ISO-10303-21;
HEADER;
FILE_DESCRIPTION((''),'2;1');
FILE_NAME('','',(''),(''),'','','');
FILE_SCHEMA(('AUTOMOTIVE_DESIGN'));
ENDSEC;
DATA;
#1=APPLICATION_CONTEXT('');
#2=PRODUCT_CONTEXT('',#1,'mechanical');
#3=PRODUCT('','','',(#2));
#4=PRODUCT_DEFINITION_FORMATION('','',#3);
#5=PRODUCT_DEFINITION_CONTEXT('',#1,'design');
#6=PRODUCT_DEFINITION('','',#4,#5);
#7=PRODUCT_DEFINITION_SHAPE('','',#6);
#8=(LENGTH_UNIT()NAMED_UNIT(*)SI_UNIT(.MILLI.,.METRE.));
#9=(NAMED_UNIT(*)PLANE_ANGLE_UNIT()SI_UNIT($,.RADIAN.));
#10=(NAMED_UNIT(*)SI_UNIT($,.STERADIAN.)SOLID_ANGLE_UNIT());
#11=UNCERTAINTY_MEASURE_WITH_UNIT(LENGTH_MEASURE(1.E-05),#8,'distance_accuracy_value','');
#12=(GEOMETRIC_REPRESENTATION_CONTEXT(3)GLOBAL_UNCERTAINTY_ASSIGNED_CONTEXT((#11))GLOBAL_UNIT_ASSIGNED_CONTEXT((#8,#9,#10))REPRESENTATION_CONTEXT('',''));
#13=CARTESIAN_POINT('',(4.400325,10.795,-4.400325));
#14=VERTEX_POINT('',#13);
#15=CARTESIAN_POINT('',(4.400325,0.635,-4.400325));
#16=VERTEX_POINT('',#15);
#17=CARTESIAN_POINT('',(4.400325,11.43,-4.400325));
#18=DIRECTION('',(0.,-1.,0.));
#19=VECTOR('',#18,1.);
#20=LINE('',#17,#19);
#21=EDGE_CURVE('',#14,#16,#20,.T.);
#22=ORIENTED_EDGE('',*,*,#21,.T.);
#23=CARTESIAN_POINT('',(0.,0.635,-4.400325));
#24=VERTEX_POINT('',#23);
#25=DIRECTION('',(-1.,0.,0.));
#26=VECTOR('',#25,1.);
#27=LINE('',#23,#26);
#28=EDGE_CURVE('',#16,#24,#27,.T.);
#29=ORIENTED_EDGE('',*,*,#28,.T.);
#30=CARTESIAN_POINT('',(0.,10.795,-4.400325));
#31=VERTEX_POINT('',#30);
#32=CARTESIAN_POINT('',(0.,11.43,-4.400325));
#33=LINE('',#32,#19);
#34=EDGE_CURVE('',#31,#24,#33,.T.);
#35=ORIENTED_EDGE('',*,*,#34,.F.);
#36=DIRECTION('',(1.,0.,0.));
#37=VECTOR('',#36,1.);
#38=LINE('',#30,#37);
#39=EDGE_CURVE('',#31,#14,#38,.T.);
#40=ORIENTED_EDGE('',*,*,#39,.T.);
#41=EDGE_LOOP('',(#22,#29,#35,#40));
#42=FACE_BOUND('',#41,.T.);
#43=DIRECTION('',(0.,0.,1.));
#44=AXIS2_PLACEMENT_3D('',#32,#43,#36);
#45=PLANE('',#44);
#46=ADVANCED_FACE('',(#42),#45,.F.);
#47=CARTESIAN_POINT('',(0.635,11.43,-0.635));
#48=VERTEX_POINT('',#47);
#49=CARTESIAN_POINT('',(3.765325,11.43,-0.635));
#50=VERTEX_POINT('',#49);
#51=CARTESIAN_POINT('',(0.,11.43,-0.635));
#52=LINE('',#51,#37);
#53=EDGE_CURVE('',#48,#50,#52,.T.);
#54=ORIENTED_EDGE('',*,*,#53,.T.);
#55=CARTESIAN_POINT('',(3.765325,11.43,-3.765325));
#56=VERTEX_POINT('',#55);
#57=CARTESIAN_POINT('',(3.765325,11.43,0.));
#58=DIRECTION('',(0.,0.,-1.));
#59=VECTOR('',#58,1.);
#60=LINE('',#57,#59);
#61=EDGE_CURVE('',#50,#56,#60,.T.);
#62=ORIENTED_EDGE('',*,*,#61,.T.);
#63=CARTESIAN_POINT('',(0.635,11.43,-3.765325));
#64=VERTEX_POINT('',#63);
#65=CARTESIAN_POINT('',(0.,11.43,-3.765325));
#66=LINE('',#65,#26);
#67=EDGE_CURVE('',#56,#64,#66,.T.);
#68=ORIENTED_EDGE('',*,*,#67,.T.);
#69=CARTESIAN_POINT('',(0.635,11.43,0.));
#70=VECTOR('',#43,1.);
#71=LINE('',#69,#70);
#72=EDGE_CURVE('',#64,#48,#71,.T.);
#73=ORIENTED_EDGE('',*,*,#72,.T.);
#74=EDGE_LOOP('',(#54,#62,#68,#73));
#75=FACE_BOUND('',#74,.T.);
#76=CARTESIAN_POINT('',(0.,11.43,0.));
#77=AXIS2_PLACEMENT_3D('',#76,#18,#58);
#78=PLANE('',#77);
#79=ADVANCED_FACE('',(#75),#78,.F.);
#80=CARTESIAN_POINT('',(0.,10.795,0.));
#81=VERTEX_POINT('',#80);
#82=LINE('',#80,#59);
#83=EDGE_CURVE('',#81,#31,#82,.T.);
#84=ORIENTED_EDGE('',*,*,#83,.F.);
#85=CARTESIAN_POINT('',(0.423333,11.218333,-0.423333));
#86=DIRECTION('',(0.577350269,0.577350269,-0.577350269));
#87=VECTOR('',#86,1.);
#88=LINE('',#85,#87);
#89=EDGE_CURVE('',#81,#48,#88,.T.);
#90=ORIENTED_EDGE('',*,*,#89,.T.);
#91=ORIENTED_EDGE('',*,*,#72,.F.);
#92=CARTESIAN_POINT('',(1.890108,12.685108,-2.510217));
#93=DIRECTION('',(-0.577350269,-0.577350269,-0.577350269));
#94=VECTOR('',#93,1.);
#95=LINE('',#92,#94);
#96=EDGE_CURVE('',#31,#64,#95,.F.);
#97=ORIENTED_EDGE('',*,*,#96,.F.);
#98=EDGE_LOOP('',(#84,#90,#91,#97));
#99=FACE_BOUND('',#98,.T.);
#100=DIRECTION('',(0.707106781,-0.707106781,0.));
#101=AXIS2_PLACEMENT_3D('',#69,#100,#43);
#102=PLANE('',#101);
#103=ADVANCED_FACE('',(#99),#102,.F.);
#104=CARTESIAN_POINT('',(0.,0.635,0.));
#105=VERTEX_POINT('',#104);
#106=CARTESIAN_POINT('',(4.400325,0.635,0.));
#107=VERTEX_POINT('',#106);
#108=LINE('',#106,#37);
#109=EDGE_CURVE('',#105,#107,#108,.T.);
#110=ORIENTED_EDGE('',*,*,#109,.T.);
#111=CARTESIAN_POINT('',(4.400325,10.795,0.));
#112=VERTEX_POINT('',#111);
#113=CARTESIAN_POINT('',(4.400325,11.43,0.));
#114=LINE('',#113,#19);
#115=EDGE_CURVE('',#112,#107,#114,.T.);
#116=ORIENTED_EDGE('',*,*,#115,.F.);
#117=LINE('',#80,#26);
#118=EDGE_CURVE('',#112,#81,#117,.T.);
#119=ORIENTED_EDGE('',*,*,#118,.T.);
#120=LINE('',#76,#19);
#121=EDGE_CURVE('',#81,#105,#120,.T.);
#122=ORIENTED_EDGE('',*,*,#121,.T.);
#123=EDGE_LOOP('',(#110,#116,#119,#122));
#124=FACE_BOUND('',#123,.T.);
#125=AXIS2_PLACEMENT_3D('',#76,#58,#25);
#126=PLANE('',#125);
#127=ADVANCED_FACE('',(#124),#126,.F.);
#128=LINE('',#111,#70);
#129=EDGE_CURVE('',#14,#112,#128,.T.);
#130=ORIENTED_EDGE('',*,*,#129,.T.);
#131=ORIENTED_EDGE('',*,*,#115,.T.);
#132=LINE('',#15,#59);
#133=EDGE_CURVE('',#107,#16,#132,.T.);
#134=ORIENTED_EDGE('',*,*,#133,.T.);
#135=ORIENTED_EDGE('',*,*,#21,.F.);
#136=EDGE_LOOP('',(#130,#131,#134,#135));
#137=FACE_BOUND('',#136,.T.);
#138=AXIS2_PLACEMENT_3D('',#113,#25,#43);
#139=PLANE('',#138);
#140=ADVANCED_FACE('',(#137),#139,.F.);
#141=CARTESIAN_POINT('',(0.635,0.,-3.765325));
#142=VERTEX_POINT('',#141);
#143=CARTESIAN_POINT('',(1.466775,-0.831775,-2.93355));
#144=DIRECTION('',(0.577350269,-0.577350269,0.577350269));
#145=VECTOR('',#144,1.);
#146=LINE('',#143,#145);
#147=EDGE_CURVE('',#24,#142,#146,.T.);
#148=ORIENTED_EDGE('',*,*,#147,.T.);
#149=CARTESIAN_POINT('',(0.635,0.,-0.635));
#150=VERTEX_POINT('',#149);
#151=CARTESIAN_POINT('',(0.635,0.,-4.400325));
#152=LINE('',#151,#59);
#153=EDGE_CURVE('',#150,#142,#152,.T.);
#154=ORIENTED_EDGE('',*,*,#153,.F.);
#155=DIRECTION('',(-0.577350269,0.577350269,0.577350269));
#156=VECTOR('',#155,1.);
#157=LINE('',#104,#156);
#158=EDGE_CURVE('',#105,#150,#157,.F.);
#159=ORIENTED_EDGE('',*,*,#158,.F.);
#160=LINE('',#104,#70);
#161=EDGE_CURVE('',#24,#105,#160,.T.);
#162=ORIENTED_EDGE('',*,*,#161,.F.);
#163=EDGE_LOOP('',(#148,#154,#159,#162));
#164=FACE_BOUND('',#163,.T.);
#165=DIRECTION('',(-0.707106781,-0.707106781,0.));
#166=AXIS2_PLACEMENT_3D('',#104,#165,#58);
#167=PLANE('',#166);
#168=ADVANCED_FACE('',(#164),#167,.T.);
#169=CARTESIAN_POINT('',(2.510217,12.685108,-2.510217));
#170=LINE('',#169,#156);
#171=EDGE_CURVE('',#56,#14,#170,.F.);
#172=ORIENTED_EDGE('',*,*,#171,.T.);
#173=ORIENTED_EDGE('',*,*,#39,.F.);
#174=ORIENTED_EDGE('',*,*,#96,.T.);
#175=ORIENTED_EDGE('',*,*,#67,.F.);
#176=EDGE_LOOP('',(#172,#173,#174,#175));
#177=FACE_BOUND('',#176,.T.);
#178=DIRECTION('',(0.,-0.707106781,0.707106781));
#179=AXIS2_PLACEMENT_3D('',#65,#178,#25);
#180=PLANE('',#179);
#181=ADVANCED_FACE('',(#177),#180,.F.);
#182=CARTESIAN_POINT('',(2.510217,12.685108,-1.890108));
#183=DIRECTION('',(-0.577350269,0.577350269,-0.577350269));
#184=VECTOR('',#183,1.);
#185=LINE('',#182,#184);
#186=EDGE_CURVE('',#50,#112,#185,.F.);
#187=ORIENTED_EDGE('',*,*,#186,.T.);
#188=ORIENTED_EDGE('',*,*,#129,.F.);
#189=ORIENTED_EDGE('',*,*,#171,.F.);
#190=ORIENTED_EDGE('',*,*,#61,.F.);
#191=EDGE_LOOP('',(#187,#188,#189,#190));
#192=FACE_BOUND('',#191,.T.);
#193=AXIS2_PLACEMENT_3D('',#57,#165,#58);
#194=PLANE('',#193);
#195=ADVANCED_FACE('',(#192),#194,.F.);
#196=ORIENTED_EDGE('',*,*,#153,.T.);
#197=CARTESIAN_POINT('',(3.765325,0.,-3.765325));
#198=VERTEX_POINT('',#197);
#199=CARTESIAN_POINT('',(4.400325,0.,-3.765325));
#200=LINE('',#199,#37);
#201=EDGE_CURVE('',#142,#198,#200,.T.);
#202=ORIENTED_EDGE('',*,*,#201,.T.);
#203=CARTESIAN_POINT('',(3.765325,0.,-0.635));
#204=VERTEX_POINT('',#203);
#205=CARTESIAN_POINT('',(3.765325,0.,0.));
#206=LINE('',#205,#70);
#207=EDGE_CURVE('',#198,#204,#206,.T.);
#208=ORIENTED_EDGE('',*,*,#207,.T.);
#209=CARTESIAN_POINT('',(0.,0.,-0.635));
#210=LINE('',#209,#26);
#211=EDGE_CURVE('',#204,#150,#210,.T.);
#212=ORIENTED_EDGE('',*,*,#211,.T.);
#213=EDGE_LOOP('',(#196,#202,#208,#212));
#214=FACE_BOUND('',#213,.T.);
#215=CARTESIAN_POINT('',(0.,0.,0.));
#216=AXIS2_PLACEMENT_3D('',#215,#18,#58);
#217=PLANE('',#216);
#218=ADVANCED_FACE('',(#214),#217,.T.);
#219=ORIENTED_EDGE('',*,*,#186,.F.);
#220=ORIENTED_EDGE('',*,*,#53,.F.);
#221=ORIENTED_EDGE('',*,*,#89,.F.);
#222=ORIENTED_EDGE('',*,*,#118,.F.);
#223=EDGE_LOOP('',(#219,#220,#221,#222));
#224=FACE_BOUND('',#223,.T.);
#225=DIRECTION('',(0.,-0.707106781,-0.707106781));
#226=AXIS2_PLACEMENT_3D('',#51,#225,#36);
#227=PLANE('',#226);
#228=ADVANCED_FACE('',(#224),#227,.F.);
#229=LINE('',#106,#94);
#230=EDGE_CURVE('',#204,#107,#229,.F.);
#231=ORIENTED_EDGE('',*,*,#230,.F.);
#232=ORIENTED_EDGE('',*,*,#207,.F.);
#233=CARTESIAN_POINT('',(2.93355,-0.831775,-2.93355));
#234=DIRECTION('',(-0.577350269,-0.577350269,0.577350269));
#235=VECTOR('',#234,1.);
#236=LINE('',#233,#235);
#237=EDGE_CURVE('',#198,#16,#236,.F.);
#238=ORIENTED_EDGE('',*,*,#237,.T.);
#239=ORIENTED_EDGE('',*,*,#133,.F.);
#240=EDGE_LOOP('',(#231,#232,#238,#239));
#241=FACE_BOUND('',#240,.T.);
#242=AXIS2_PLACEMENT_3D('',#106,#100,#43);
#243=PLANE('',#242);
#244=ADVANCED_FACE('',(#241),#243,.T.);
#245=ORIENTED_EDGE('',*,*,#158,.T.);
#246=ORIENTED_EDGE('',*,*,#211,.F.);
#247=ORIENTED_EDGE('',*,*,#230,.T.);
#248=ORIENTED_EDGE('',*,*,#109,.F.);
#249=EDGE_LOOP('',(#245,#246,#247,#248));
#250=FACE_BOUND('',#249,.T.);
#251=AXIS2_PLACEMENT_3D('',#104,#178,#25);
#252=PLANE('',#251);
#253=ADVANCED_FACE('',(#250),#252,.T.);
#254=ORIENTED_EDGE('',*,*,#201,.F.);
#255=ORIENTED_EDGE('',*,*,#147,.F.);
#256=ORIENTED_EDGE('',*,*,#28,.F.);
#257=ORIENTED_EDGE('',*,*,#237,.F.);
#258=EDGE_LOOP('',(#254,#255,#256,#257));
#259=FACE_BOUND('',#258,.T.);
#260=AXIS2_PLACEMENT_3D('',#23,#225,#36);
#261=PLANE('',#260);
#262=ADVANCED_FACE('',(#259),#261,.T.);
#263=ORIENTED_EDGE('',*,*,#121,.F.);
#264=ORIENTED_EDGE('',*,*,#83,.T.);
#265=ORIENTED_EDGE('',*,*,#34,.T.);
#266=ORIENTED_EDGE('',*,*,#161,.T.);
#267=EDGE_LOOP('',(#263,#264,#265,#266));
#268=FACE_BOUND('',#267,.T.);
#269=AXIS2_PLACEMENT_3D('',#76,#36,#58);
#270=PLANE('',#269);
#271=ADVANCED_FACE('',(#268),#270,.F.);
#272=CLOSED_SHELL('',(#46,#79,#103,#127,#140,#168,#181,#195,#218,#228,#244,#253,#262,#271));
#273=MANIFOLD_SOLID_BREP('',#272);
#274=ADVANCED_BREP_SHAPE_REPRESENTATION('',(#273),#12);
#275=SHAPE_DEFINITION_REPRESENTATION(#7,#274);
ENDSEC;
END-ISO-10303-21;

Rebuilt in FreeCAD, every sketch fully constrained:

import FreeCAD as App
import Part
import Sketcher
from FreeCAD import Vector
Q = App.Units.Quantity


def edges_at(feature, points):
    """Names of the edges that pass closest to the given points."""
    edges = feature.Shape.Edges
    near = lambda p: min(range(len(edges)), key=lambda i: edges[i].distToShape(Part.Vertex(*p))[0])
    return sorted({f"Edge{near(p) + 1}" for p in points})


def add_polygon(sketch, points):
    """Adds a closed chain of lines whose ends are joined by coincident constraints."""
    first, n = sketch.GeometryCount, len(points)
    for a, b in zip(points, points[1:] + points[:1]):
        sketch.addGeometry(Part.LineSegment(App.Vector(*a, 0), App.Vector(*b, 0)), False)
    for i in range(n):
        sketch.addConstraint(Sketcher.Constraint("Coincident", first + i, 2, first + (i + 1) % n, 1))

doc = App.newDocument("Part")
body = doc.addObject("PartDesign::Body", "Body")

sketch1 = doc.addObject("Sketcher::SketchObject", "Sketch")
body.addObject(sketch1)
sketch1.AttachmentSupport = (doc.XZ_Plane, [""])
sketch1.MapMode = "FlatFace"
add_polygon(sketch1, [(0, -4.4), (0, 0), (4.4, 0), (4.4, -4.4)])
sketch1.addConstraint(Sketcher.Constraint("Vertical", 0))
sketch1.addConstraint(Sketcher.Constraint("Horizontal", 1))
sketch1.addConstraint(Sketcher.Constraint("Vertical", 2))
sketch1.addConstraint(Sketcher.Constraint("Horizontal", 3))
sketch1.addConstraint(Sketcher.Constraint("Coincident", 0, 2, -1, 1))
sketch1.addConstraint(Sketcher.Constraint("Equal", 3, 0))
sketch1.addConstraint(Sketcher.Constraint("DistanceX", 1, 1, 1, 2, 4.400325))
pad1 = doc.addObject("PartDesign::Pad", "Pad")
body.addObject(pad1)
pad1.Profile = sketch1
pad1.Length = Q("0.45 in")
pad1.Reversed = True
doc.recompute()

chamfer = doc.addObject("PartDesign::Chamfer", "Chamfer")
body.addObject(chamfer)
chamfer.Base = (pad1, edges_at(pad1, [
    (4.4, 11.43, -2.2),
    (2.2, 11.43, -4.4),
    (0, 11.43, -2.2),
    (2.2, 0, -4.4),
    (4.4, 0, -2.2),
    (2.2, 0, 0),
    (0, 0, -2.2),
    (2.2, 11.43, 0),
]))
chamfer.Size = Q("0.025 in")

doc.recompute()
